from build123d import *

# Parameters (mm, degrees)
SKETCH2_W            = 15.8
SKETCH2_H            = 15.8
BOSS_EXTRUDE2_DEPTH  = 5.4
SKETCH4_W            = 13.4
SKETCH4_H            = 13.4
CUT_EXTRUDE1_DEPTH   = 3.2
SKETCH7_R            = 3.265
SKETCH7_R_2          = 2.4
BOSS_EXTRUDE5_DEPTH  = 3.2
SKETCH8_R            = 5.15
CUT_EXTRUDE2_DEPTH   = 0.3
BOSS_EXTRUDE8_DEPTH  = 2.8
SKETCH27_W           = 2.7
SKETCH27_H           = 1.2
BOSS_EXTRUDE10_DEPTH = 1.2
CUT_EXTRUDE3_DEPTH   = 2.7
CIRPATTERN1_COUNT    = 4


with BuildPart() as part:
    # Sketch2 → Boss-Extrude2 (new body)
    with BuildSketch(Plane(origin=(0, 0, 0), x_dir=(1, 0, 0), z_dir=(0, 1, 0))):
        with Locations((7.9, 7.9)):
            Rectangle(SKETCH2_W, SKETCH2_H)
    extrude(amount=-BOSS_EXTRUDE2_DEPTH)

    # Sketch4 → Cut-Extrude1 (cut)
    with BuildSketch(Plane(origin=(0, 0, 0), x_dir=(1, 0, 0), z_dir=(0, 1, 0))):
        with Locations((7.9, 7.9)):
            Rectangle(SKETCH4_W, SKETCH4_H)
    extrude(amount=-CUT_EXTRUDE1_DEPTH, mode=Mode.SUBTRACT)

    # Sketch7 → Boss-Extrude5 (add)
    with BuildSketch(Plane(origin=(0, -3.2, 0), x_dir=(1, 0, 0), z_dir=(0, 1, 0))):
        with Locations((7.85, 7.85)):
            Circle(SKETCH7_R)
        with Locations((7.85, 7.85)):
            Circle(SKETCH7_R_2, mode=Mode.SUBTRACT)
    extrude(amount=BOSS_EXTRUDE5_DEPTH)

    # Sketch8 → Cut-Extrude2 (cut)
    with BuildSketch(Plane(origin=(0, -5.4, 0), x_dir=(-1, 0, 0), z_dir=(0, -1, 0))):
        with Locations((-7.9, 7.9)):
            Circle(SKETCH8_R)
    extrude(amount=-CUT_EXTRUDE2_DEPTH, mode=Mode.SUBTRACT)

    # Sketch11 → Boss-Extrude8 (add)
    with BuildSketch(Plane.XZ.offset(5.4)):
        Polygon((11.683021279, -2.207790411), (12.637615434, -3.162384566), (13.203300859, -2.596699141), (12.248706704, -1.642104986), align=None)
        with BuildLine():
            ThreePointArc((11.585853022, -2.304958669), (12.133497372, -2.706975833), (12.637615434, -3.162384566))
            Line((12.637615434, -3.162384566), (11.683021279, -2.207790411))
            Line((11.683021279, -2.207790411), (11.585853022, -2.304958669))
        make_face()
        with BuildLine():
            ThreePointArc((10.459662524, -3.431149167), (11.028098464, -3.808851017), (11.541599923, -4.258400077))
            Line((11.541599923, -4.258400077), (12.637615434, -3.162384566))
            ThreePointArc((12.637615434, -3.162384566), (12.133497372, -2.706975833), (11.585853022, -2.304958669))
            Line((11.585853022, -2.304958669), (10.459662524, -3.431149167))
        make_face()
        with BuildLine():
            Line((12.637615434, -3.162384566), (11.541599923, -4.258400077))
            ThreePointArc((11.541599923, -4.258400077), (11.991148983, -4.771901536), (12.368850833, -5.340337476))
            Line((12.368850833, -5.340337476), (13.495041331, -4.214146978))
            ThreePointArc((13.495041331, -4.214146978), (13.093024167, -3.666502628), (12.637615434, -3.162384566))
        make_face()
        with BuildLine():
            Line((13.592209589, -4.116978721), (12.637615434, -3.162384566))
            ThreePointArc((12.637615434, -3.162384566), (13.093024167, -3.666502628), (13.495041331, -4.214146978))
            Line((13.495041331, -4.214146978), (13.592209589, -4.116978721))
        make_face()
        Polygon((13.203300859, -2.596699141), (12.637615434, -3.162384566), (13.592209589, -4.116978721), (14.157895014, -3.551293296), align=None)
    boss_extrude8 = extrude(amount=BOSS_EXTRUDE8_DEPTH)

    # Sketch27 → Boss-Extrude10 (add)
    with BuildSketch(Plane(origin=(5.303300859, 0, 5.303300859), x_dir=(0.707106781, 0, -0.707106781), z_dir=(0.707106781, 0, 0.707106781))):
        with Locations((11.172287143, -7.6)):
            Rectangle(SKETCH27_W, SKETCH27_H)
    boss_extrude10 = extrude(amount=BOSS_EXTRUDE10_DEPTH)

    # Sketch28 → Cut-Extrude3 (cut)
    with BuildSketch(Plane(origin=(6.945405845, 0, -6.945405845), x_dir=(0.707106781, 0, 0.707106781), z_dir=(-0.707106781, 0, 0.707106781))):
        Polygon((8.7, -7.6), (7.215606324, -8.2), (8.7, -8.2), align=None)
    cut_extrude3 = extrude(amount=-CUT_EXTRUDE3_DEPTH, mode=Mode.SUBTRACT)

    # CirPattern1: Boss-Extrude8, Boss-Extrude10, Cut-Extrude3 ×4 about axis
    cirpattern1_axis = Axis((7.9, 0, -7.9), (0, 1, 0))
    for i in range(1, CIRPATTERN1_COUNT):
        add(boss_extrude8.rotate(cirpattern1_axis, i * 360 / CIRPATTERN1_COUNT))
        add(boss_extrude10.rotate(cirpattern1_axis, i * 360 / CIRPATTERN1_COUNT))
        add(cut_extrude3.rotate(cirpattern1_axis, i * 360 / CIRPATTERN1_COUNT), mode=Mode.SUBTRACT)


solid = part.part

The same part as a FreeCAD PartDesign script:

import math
import FreeCAD as App
import Part
import Sketcher

V = App.Vector
Q = App.Units.Quantity


def add_polygon(sketch, points):
    """Adds a closed chain of lines whose ends are joined by coincident constraints."""
    first, n = sketch.GeometryCount, len(points)
    for a, b in zip(points, points[1:] + points[:1]):
        sketch.addGeometry(Part.LineSegment(App.Vector(*a, 0), App.Vector(*b, 0)), False)
    for i in range(n):
        sketch.addConstraint(Sketcher.Constraint("Coincident", first + i, 2, first + (i + 1) % n, 1))

doc = App.newDocument("Part")
body = doc.addObject("PartDesign::Body", "Body")

# Sketch on XZ plane
sketch1 = body.newObject("Sketcher::SketchObject", "Sketch")
sketch1.AttachmentSupport = (doc.getObject("XZ_Plane"), [""])
sketch1.MapMode = "FlatFace"
add_polygon(sketch1, [(0, -15.8), (0, 0), (15.8, 0), (15.8, -15.8)])  # lines 0-3
sketch1.addConstraint(Sketcher.Constraint("Vertical", 0))
sketch1.addConstraint(Sketcher.Constraint("Horizontal", 1))
sketch1.addConstraint(Sketcher.Constraint("Vertical", 2))
sketch1.addConstraint(Sketcher.Constraint("Horizontal", 3))
sketch1.addConstraint(Sketcher.Constraint("Coincident", 0, 2, -1, 1))
sketch1.addConstraint(Sketcher.Constraint("Equal", 3, 0))
sketch1.addConstraint(Sketcher.Constraint("DistanceX", 1, 1, 1, 2, Q("15.8 mm")))
pad1 = body.newObject("PartDesign::Pad", "Pad")
pad1.Profile = sketch1
pad1.Length = 5.4

# Sketch on XZ plane
sketch2 = body.newObject("Sketcher::SketchObject", "Sketch001")
sketch2.AttachmentSupport = (doc.getObject("XZ_Plane"), [""])
sketch2.MapMode = "FlatFace"
add_polygon(sketch2, [(1.2, -14.6), (1.2, -1.2), (14.6, -1.2), (14.6, -14.6)])  # lines 0-3
sketch2.addConstraint(Sketcher.Constraint("Vertical", 0))
sketch2.addConstraint(Sketcher.Constraint("Horizontal", 1))
sketch2.addConstraint(Sketcher.Constraint("Vertical", 2))
sketch2.addConstraint(Sketcher.Constraint("Horizontal", 3))
sketch2.addConstraint(Sketcher.Constraint("Equal", 3, 0))
sketch2.addConstraint(Sketcher.Constraint("DistanceX", 1, 1, 1, 2, Q("13.4 mm")))
sketch2.addConstraint(Sketcher.Constraint("DistanceX", -1, 1, 0, 2, Q("1.2 mm")))
sketch2.addConstraint(Sketcher.Constraint("DistanceY", 0, 2, -1, 1, Q("1.2 mm")))
pocket1 = body.newObject("PartDesign::Pocket", "Pocket")
pocket1.Profile = sketch2
pocket1.Length = 3.2
pocket1.Reversed = True

# Sketch on XZ plane
sketch3 = body.newObject("Sketcher::SketchObject", "Sketch002")
sketch3.AttachmentSupport = (doc.getObject("XZ_Plane"), [""])
sketch3.MapMode = "FlatFace"
sketch3.AttachmentOffset = App.Placement(V(0, 0, 3.2), App.Rotation())
sketch3.addGeometry(Part.Circle(V(7.85, -7.85, 0), V(0, 0, 1), 3.265), False)
sketch3.addGeometry(Part.Circle(V(7.85, -7.85, 0), V(0, 0, 1), 2.4), False)
sketch3.addConstraint(Sketcher.Constraint("Coincident", 1, 3, 0, 3))
sketch3.addConstraint(Sketcher.Constraint("Diameter", 1, Q("4.8 mm")))
sketch3.addConstraint(Sketcher.Constraint("Diameter", 0, Q("6.53 mm")))
sketch3.addConstraint(Sketcher.Constraint("DistanceX", -1, 1, 0, 3, Q("7.85 mm")))
sketch3.addConstraint(Sketcher.Constraint("DistanceY", 0, 3, -1, 1, Q("7.85 mm")))
pad2 = body.newObject("PartDesign::Pad", "Pad001")
pad2.Profile = sketch3
pad2.Length = 3.2
pad2.Reversed = True

# Sketch on XZ plane
sketch4 = body.newObject("Sketcher::SketchObject", "Sketch003")
sketch4.AttachmentSupport = (doc.getObject("XZ_Plane"), [""])
sketch4.MapMode = "FlatFace"
sketch4.AttachmentOffset = App.Placement(V(0, 0, 5.4), App.Rotation())
sketch4.addGeometry(Part.Circle(V(7.9, -7.9, 0), V(0, 0, 1), 5.15), False)
sketch4.addConstraint(Sketcher.Constraint("Diameter", 0, Q("10.3 mm")))
sketch4.addConstraint(Sketcher.Constraint("DistanceX", -1, 1, 0, 3, Q("7.9 mm")))
sketch4.addConstraint(Sketcher.Constraint("DistanceY", 0, 3, -1, 1, Q("7.9 mm")))
pocket2 = body.newObject("PartDesign::Pocket", "Pocket001")
pocket2.Profile = sketch4
pocket2.Length = 0.3

# Sketch on XZ plane
sketch5 = body.newObject("Sketcher::SketchObject", "Sketch004")
sketch5.AttachmentSupport = (doc.getObject("XZ_Plane"), [""])
sketch5.MapMode = "FlatFace"
sketch5.AttachmentOffset = App.Placement(V(0, 0, 5.4), App.Rotation())
sketch5.addGeometry(Part.LineSegment(V(12.248707, -1.642105, 0), V(11.683021, -2.20779, 0)), False)
sketch5.addGeometry(Part.LineSegment(V(11.683021, -2.20779, 0), V(11.585853, -2.304959, 0)), False)
sketch5.addGeometry(Part.LineSegment(V(11.585853, -2.304959, 0), V(10.459663, -3.431149, 0)), False)
sketch5.addGeometry(Part.ArcOfCircle(Part.Circle(V(7.9, -7.9, 0), V(0, 0, 1), 5.15), math.radians(45), math.radians(60.196838)), False)
sketch5.addGeometry(Part.ArcOfCircle(Part.Circle(V(7.9, -7.9, 0), V(0, 0, 1), 5.15), math.radians(29.803162), math.radians(45)), False)
sketch5.addGeometry(Part.LineSegment(V(12.368851, -5.340337, 0), V(13.495041, -4.214147, 0)), False)
sketch5.addGeometry(Part.LineSegment(V(13.495041, -4.214147, 0), V(13.59221, -4.116979, 0)), False)
sketch5.addGeometry(Part.LineSegment(V(13.59221, -4.116979, 0), V(14.157895, -3.551293, 0)), False)
sketch5.addGeometry(Part.LineSegment(V(14.157895, -3.551293, 0), V(12.248707, -1.642105, 0)), False)
sketch5.addConstraint(Sketcher.Constraint("Coincident", 0, 2, 1, 1))
sketch5.addConstraint(Sketcher.Constraint("Coincident", 1, 2, 2, 1))
sketch5.addConstraint(Sketcher.Constraint("Coincident", 2, 2, 3, 2))
sketch5.addConstraint(Sketcher.Constraint("Tangent", 3, 1, 4, 2))
sketch5.addConstraint(Sketcher.Constraint("Coincident", 4, 1, 5, 1))
sketch5.addConstraint(Sketcher.Constraint("Coincident", 5, 2, 6, 1))
sketch5.addConstraint(Sketcher.Constraint("Coincident", 6, 2, 7, 1))
sketch5.addConstraint(Sketcher.Constraint("Coincident", 7, 2, 8, 1))
sketch5.addConstraint(Sketcher.Constraint("Coincident", 8, 2, 0, 1))
sketch5.addConstraint(Sketcher.Constraint("Equal", 3, 4))
sketch5.addConstraint(Sketcher.Constraint("Parallel", 0, 1))
sketch5.addConstraint(Sketcher.Constraint("Parallel", 1, 2))
sketch5.addConstraint(Sketcher.Constraint("Parallel", 2, 5))
sketch5.addConstraint(Sketcher.Constraint("Parallel", 5, 6))
sketch5.addConstraint(Sketcher.Constraint("Parallel", 6, 7))
sketch5.addConstraint(Sketcher.Constraint("Perpendicular", 7, 8))
sketch5.addConstraint(Sketcher.Constraint("Equal", 2, 5))
sketch5.addConstraint(Sketcher.Constraint("Equal", 1, 6))
sketch5.addConstraint(Sketcher.Constraint("Equal", 0, 7))
sketch5.addConstraint(Sketcher.Constraint("Angle", 0, Q("-135 deg")))
sketch5.addConstraint(Sketcher.Constraint("Radius", 3, Q("5.15 mm")))
sketch5.addConstraint(Sketcher.Constraint("Distance", 0, Q("0.8 mm")))
sketch5.addConstraint(Sketcher.Constraint("Distance", 8, Q("2.7 mm")))
sketch5.addConstraint(Sketcher.Constraint("DistanceX", -1, 1, 3, 3, Q("7.9 mm")))
sketch5.addConstraint(Sketcher.Constraint("DistanceY", 3, 3, -1, 1, Q("7.9 mm")))
sketch5.addConstraint(Sketcher.Constraint("DistanceX", -1, 1, 3, 1, Q("11.5416 mm")))
sketch5.addConstraint(Sketcher.Constraint("DistanceX", -1, 1, 0, 2, Q("11.683021 mm")))
sketch5.addConstraint(Sketcher.Constraint("DistanceY", 1, 2, -1, 1, Q("2.304959 mm")))
pad3 = body.newObject("PartDesign::Pad", "Pad002")
pad3.Profile = sketch5
pad3.Length = 2.8

# Sketch on an angled plane
sketch6 = body.newObject("Sketcher::SketchObject", "Sketch005")
sketch6.Placement = App.Placement(V(5.303301, 0, 5.303301), App.Rotation(V(0.707106781, 0, -0.707106781), V(0, 0.999999999, 0), V(0.707106781, 0, 0.707106781), "ZXY"))
add_polygon(sketch6, [(9.822287, -7), (9.822287, -8.2), (12.522287, -8.2), (12.522287, -7)])  # lines 0-3
sketch6.addConstraint(Sketcher.Constraint("Vertical", 0))
sketch6.addConstraint(Sketcher.Constraint("Horizontal", 1))
sketch6.addConstraint(Sketcher.Constraint("Vertical", 2))
sketch6.addConstraint(Sketcher.Constraint("Horizontal", 3))
sketch6.addConstraint(Sketcher.Constraint("DistanceX", 1, 1, 1, 2, Q("2.7 mm")))
sketch6.addConstraint(Sketcher.Constraint("DistanceY", 0, 2, 0, 1, Q("1.2 mm")))
sketch6.addConstraint(Sketcher.Constraint("DistanceY", 2, 2, -1, 1, Q("7 mm")))
sketch6.addConstraint(Sketcher.Constraint("DistanceX", -1, 1, 0, 2, Q("9.822287 mm")))
pad4 = body.newObject("PartDesign::Pad", "Pad003")
pad4.Profile = sketch6
pad4.Length = 1.2

# Sketch on an angled plane
sketch7 = body.newObject("Sketcher::SketchObject", "Sketch006")
sketch7.Placement = App.Placement(V(6.945406, 0, -6.945406), App.Rotation(V(0.707106781, 0, 0.707106781), V(0, 0.999999999, 0), V(-0.707106781, 0, 0.707106781), "ZXY"))
add_polygon(sketch7, [(8.7, -7.6), (7.215606, -8.2), (8.7, -8.2)])  # lines 0-2
sketch7.addConstraint(Sketcher.Constraint("Horizontal", 1))
sketch7.addConstraint(Sketcher.Constraint("Vertical", 2))
sketch7.addConstraint(Sketcher.Constraint("DistanceY", 2, 1, 2, 2, Q("0.6 mm")))
sketch7.addConstraint(Sketcher.Constraint("DistanceY", 0, 2, -1, 1, Q("8.2 mm")))
sketch7.addConstraint(Sketcher.Constraint("DistanceX", -1, 1, 1, 2, Q("8.7 mm")))
sketch7.addConstraint(Sketcher.Constraint("Distance", 0, Q("1.60107 mm")))
pocket3 = body.newObject("PartDesign::Pocket", "Pocket002")
pocket3.Profile = sketch7
pocket3.Length = 2.7
doc.recompute()

datumline = body.newObject("PartDesign::Line", "DatumLine")
datumline.Placement = App.Placement(V(7.9, 0, -7.9), App.Rotation(V(0, 0, 1), V(0, 1, 0)))
polarpattern = body.newObject("PartDesign::PolarPattern", "PolarPattern")
polarpattern.Originals = [pad3, pad4, pocket3]
polarpattern.Axis = (datumline, [""])
polarpattern.Angle = 360
polarpattern.Occurrences = 4
body.Tip = polarpattern

doc.recompute()
